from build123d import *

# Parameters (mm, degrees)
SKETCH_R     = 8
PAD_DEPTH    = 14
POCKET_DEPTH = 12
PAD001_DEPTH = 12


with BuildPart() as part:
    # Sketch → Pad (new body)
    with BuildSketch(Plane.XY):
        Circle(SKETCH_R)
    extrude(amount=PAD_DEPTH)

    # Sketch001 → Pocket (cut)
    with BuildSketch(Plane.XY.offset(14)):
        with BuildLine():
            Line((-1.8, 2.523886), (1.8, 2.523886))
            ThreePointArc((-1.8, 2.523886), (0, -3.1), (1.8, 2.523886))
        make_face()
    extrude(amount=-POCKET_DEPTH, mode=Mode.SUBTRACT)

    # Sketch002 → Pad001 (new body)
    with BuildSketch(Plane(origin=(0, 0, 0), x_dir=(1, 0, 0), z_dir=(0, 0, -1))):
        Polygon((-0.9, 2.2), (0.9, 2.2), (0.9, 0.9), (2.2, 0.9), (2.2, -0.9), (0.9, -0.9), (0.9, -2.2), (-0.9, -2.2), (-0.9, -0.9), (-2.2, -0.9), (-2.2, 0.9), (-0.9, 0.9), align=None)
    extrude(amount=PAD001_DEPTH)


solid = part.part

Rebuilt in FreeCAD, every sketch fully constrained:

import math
import FreeCAD as App
import Part
import Sketcher

V = App.Vector

doc = App.newDocument("Part")
params = doc.addObject("Spreadsheet::Sheet", "Params")
for row, (alias, value) in enumerate([
    ("sketch1_diameter", "16 mm"),
    ("pad1_length", "14 mm"),
    ("sketch2_radius", "3.1 mm"),
    ("sketch2_width", "3.6 mm"),
    ("pocket1_length", "12 mm"),
    ("sketch3_width", "1.8 mm"),
    ("sketch3_width2", "1.3 mm"),
    ("pad2_length", "12 mm"),
], start=1):
    params.set(f"A{row}", alias)
    params.set(f"B{row}", "=" + value)
    params.setAlias(f"B{row}", alias)

body = doc.addObject("PartDesign::Body", "Body")

sketch1 = body.newObject("Sketcher::SketchObject", "Sketch")
sketch1.AttachmentSupport = (doc.getObject("XY_Plane"), [""])
sketch1.MapMode = "FlatFace"
sketch1.addGeometry(Part.Circle(V(0, 0, 0), V(0, 0, 1), 8), False)
sketch1.addConstraint([
    Sketcher.Constraint("Coincident", 0, 3, -1, 1),
    Sketcher.Constraint("Diameter", 0, 16.0),
])
sketch1.setExpression("Constraints[1]", "Params.sketch1_diameter")
pad1 = body.newObject("PartDesign::Pad", "Pad")
pad1.Profile = sketch1
pad1.setExpression("Length", "Params.pad1_length")

sketch2 = body.newObject("Sketcher::SketchObject", "Sketch001")
sketch2.AttachmentSupport = (doc.getObject("XY_Plane"), [""])
sketch2.MapMode = "FlatFace"
sketch2.AttachmentOffset = App.Placement(V(0, 0, 14), App.Rotation())
sketch2.addGeometry([
    Part.LineSegment(V(1.8, 2.523886, 0), V(-1.8, 2.523886, 0)),
    Part.ArcOfCircle(Part.Circle(V(0, 0, 0), V(0, 0, 1), 3.1), math.radians(125.495932), math.radians(414.504068)),
], False)
sketch2.addConstraint([
    Sketcher.Constraint("Coincident", 0, 1, 1, 2),
    Sketcher.Constraint("Coincident", 1, 1, 0, 2),
    Sketcher.Constraint("Horizontal", 0),
    Sketcher.Constraint("Coincident", 1, 3, -1, 1),
    Sketcher.Constraint("Radius", 1, 3.1),
    Sketcher.Constraint("DistanceX", 0, 2, 0, 1, 3.6),
])
sketch2.setExpression("Constraints[4]", "Params.sketch2_radius")
sketch2.setExpression("Constraints[5]", "Params.sketch2_width")
pocket1 = body.newObject("PartDesign::Pocket", "Pocket")
pocket1.Profile = sketch2
pocket1.setExpression("Length", "Params.pocket1_length")

sketch3 = body.newObject("Sketcher::SketchObject", "Sketch002")
sketch3.AttachmentSupport = (doc.getObject("XY_Plane"), [""])
sketch3.MapMode = "FlatFace"
sketch3.addGeometry([
    Part.LineSegment(V(0.9, -2.2, 0), V(-0.9, -2.2, 0)),
    Part.LineSegment(V(-0.9, -2.2, 0), V(-0.9, -0.9, 0)),
    Part.LineSegment(V(-0.9, -0.9, 0), V(-2.2, -0.9, 0)),
    Part.LineSegment(V(-2.2, -0.9, 0), V(-2.2, 0.9, 0)),
    Part.LineSegment(V(-2.2, 0.9, 0), V(-0.9, 0.9, 0)),
    Part.LineSegment(V(-0.9, 0.9, 0), V(-0.9, 2.2, 0)),
    Part.LineSegment(V(-0.9, 2.2, 0), V(0.9, 2.2, 0)),
    Part.LineSegment(V(0.9, 2.2, 0), V(0.9, 0.9, 0)),
    Part.LineSegment(V(0.9, 0.9, 0), V(2.2, 0.9, 0)),
    Part.LineSegment(V(2.2, 0.9, 0), V(2.2, -0.9, 0)),
    Part.LineSegment(V(2.2, -0.9, 0), V(0.9, -0.9, 0)),
    Part.LineSegment(V(0.9, -0.9, 0), V(0.9, -2.2, 0)),
], False)
sketch3.addConstraint([
    Sketcher.Constraint("Coincident", 0, 2, 1, 1),
    Sketcher.Constraint("Coincident", 1, 2, 2, 1),
    Sketcher.Constraint("Coincident", 2, 2, 3, 1),
    Sketcher.Constraint("Coincident", 3, 2, 4, 1),
    Sketcher.Constraint("Coincident", 4, 2, 5, 1),
    Sketcher.Constraint("Coincident", 5, 2, 6, 1),
    Sketcher.Constraint("Coincident", 6, 2, 7, 1),
    Sketcher.Constraint("Coincident", 7, 2, 8, 1),
    Sketcher.Constraint("Coincident", 8, 2, 9, 1),
    Sketcher.Constraint("Coincident", 9, 2, 10, 1),
    Sketcher.Constraint("Coincident", 10, 2, 11, 1),
    Sketcher.Constraint("Coincident", 11, 2, 0, 1),
    Sketcher.Constraint("Horizontal", 0),
    Sketcher.Constraint("Vertical", 1),
    Sketcher.Constraint("Horizontal", 2),
    Sketcher.Constraint("Vertical", 3),
    Sketcher.Constraint("Horizontal", 4),
    Sketcher.Constraint("Vertical", 5),
    Sketcher.Constraint("Horizontal", 6),
    Sketcher.Constraint("Vertical", 7),
    Sketcher.Constraint("Horizontal", 8),
    Sketcher.Constraint("Vertical", 9),
    Sketcher.Constraint("Horizontal", 10),
    Sketcher.Constraint("Vertical", 11),
    Sketcher.Constraint("Symmetric", 0, 2, 6, 2, -1, 1),
    Sketcher.Constraint("Symmetric", 2, 2, 8, 2, -1, 1),
    Sketcher.Constraint("Symmetric", 4, 2, 10, 2, -1, 1),
    Sketcher.Constraint("Symmetric", 4, 2, 7, 2, -2),
    Sketcher.Constraint("Equal", 10, 1),
    Sketcher.Constraint("Equal", 6, 3),
    Sketcher.Constraint("DistanceX", 0, 2, 0, 1, 1.8),
    Sketcher.Constraint("DistanceX", 2, 2, 2, 1, 1.3),
])
sketch3.setExpression("Constraints[30]", "Params.sketch3_width")
sketch3.setExpression("Constraints[31]", "Params.sketch3_width2")
pad2 = body.newObject("PartDesign::Pad", "Pad001")
pad2.Profile = sketch3
pad2.setExpression("Length", "Params.pad2_length")
pad2.Reversed = True

doc.recompute()
